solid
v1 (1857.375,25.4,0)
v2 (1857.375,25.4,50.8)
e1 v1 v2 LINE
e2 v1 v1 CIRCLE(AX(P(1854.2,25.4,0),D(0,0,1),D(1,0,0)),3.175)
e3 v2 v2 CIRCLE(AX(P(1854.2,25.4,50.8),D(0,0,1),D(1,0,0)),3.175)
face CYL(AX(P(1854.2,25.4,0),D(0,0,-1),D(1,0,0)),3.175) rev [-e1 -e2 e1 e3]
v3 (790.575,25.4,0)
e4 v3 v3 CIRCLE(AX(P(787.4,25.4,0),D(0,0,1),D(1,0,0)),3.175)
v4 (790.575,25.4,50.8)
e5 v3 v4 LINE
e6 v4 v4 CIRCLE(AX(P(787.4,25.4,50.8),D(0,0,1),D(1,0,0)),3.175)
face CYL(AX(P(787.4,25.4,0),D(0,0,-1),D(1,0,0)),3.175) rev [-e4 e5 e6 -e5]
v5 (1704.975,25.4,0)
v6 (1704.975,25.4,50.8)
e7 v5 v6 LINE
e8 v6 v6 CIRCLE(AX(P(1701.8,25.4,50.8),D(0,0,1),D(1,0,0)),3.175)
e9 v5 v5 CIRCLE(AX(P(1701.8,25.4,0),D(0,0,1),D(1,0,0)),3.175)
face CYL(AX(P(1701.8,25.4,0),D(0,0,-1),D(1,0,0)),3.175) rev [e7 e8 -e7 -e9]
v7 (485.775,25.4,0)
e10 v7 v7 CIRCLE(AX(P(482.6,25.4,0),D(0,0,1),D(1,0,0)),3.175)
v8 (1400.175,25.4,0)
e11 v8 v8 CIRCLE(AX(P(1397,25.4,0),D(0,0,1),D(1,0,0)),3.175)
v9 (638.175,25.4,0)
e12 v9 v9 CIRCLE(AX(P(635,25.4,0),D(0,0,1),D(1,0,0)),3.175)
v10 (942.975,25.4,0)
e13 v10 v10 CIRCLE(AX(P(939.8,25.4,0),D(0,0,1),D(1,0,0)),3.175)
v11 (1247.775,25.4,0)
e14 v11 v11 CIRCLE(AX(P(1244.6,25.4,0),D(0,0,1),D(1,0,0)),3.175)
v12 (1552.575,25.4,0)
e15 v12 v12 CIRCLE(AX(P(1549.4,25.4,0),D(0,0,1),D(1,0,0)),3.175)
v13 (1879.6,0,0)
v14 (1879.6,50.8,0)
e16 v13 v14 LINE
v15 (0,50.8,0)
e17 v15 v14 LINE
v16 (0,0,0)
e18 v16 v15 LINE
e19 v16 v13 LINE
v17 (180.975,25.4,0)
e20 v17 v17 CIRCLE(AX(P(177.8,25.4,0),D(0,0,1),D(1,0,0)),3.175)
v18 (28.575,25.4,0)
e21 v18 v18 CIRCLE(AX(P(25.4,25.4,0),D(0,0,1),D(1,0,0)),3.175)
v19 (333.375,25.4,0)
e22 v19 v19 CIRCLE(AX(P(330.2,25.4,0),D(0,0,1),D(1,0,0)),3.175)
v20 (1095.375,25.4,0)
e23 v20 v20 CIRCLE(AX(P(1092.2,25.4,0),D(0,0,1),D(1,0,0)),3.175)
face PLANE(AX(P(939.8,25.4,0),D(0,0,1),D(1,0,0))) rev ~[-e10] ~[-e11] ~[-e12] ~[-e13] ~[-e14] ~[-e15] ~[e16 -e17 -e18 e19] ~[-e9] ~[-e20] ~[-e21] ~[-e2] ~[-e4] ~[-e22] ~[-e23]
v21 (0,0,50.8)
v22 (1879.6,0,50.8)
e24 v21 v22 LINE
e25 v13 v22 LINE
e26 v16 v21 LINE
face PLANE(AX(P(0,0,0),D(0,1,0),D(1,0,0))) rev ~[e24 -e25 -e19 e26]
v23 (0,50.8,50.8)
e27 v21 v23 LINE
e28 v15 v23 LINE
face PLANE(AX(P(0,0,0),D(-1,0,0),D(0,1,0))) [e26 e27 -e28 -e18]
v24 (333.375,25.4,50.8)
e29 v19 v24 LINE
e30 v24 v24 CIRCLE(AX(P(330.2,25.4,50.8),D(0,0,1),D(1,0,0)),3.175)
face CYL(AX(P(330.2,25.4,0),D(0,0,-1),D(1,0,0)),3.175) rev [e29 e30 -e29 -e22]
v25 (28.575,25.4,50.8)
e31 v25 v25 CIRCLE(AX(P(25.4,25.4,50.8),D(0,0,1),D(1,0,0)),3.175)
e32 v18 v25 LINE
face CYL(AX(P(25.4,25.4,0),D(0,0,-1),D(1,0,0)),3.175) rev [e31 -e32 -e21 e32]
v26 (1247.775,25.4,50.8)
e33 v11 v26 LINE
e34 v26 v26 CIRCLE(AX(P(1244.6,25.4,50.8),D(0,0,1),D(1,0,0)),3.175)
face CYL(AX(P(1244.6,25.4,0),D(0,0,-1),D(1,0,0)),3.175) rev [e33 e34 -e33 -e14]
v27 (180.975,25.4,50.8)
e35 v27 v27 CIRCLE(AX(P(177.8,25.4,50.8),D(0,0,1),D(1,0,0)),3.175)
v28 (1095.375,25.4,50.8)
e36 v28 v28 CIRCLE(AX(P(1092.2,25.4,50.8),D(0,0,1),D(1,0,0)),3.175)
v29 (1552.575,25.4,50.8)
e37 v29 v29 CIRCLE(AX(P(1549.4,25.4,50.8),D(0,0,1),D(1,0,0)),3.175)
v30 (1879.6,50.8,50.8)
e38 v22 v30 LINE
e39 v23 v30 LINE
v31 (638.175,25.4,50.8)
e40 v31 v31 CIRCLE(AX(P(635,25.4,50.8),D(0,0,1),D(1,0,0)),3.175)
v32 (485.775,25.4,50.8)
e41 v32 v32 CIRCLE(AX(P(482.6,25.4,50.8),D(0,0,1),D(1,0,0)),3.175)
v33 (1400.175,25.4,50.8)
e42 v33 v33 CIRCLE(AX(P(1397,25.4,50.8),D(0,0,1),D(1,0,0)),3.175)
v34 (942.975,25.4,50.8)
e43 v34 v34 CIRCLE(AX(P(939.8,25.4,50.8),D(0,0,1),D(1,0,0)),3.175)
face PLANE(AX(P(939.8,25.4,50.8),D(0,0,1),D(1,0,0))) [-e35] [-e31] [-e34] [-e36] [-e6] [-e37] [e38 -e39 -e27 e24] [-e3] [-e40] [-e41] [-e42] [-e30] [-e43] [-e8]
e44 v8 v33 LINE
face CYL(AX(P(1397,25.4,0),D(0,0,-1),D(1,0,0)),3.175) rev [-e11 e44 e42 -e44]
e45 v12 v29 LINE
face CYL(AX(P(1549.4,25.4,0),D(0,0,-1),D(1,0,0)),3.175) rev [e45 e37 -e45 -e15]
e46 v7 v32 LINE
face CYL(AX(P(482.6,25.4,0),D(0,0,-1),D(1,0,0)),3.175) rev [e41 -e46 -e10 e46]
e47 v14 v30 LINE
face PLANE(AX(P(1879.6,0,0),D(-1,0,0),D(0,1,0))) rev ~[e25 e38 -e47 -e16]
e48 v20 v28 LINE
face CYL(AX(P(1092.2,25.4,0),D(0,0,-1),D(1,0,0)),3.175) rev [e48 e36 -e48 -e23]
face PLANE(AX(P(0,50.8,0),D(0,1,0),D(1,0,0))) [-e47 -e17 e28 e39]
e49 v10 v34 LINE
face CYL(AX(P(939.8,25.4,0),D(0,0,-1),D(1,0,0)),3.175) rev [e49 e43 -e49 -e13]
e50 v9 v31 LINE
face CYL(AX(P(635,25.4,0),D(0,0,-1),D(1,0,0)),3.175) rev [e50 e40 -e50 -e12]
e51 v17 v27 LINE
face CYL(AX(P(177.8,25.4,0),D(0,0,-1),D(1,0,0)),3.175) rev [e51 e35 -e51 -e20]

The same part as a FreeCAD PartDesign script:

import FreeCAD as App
import Part
import Sketcher

V = App.Vector
Q = App.Units.Quantity


def add_polygon(sketch, points):
    """Adds a closed chain of lines whose ends are joined by coincident constraints."""
    first, n = sketch.GeometryCount, len(points)
    for a, b in zip(points, points[1:] + points[:1]):
        sketch.addGeometry(Part.LineSegment(App.Vector(*a, 0), App.Vector(*b, 0)), False)
    for i in range(n):
        sketch.addConstraint(Sketcher.Constraint("Coincident", first + i, 2, first + (i + 1) % n, 1))

doc = App.newDocument("Part")
body = doc.addObject("PartDesign::Body", "Body")

# Sketch on XY plane
sketch1 = body.newObject("Sketcher::SketchObject", "Sketch")
sketch1.AttachmentSupport = (doc.getObject("XY_Plane"), [""])
sketch1.MapMode = "FlatFace"
add_polygon(sketch1, [(0, 50.8), (0, 0), (1879.6, 0), (1879.6, 50.8)])  # lines 0-3
sketch1.addGeometry(Part.Circle(V(25.4, 25.4, 0), V(0, 0, 1), 3.2), False)  # 4
sketch1.addGeometry(Part.Circle(V(177.8, 25.4, 0), V(0, 0, 1), 3.2), False)  # 5
sketch1.addGeometry(Part.Circle(V(330.2, 25.4, 0), V(0, 0, 1), 3.2), False)  # 6
sketch1.addGeometry(Part.Circle(V(482.6, 25.4, 0), V(0, 0, 1), 3.2), False)  # 7
sketch1.addGeometry(Part.Circle(V(635, 25.4, 0), V(0, 0, 1), 3.2), False)  # 8
sketch1.addGeometry(Part.Circle(V(787.4, 25.4, 0), V(0, 0, 1), 3.2), False)  # 9
sketch1.addGeometry(Part.Circle(V(939.8, 25.4, 0), V(0, 0, 1), 3.2), False)  # 10
sketch1.addGeometry(Part.Circle(V(1092.2, 25.4, 0), V(0, 0, 1), 3.2), False)  # 11
sketch1.addGeometry(Part.Circle(V(1244.6, 25.4, 0), V(0, 0, 1), 3.2), False)  # 12
sketch1.addGeometry(Part.Circle(V(1397, 25.4, 0), V(0, 0, 1), 3.2), False)  # 13
sketch1.addGeometry(Part.Circle(V(1549.4, 25.4, 0), V(0, 0, 1), 3.2), False)  # 14
sketch1.addGeometry(Part.Circle(V(1701.8, 25.4, 0), V(0, 0, 1), 3.2), False)  # 15
sketch1.addGeometry(Part.Circle(V(1854.2, 25.4, 0), V(0, 0, 1), 3.2), False)  # 16
sketch1.addConstraint(Sketcher.Constraint("Vertical", 0))
sketch1.addConstraint(Sketcher.Constraint("Horizontal", 1))
sketch1.addConstraint(Sketcher.Constraint("Vertical", 2))
sketch1.addConstraint(Sketcher.Constraint("Horizontal", 3))
sketch1.addConstraint(Sketcher.Constraint("Coincident", 0, 2, -1, 1))
sketch1.addConstraint(Sketcher.Constraint("Equal", 4, 5))
sketch1.addConstraint(Sketcher.Constraint("Equal", 5, 6))
sketch1.addConstraint(Sketcher.Constraint("Equal", 6, 7))
sketch1.addConstraint(Sketcher.Constraint("Equal", 7, 8))
sketch1.addConstraint(Sketcher.Constraint("Equal", 8, 9))
sketch1.addConstraint(Sketcher.Constraint("Equal", 9, 10))
sketch1.addConstraint(Sketcher.Constraint("Equal", 10, 11))
sketch1.addConstraint(Sketcher.Constraint("Equal", 11, 12))
sketch1.addConstraint(Sketcher.Constraint("Equal", 12, 13))
sketch1.addConstraint(Sketcher.Constraint("Equal", 13, 14))
sketch1.addConstraint(Sketcher.Constraint("Equal", 14, 15))
sketch1.addConstraint(Sketcher.Constraint("Equal", 15, 16))
sketch1.addConstraint(Sketcher.Constraint("Horizontal", 4, 3, 5, 3))
sketch1.addConstraint(Sketcher.Constraint("Horizontal", 5, 3, 6, 3))
sketch1.addConstraint(Sketcher.Constraint("Horizontal", 6, 3, 7, 3))
sketch1.addConstraint(Sketcher.Constraint("Horizontal", 7, 3, 8, 3))
sketch1.addConstraint(Sketcher.Constraint("Horizontal", 8, 3, 9, 3))
sketch1.addConstraint(Sketcher.Constraint("Horizontal", 9, 3, 10, 3))
sketch1.addConstraint(Sketcher.Constraint("Horizontal", 10, 3, 11, 3))
sketch1.addConstraint(Sketcher.Constraint("Horizontal", 11, 3, 12, 3))
sketch1.addConstraint(Sketcher.Constraint("Horizontal", 12, 3, 13, 3))
sketch1.addConstraint(Sketcher.Constraint("Horizontal", 13, 3, 14, 3))
sketch1.addConstraint(Sketcher.Constraint("Horizontal", 14, 3, 15, 3))
sketch1.addConstraint(Sketcher.Constraint("Horizontal", 15, 3, 16, 3))
sketch1.addConstraint(Sketcher.Constraint("Diameter", 4, Q("0.25 in")))
sketch1.addConstraint(Sketcher.Constraint("DistanceX", 1, 1, 1, 2, Q("74 in")))
sketch1.addConstraint(Sketcher.Constraint("DistanceY", 0, 2, 0, 1, Q("2 in")))
sketch1.addConstraint(Sketcher.Constraint("DistanceX", -1, 1, 4, 3, Q("1 in")))
sketch1.addConstraint(Sketcher.Constraint("DistanceY", -1, 1, 4, 3, Q("1 in")))
sketch1.addConstraint(Sketcher.Constraint("DistanceX", -1, 1, 5, 3, Q("7 in")))
sketch1.addConstraint(Sketcher.Constraint("DistanceX", -1, 1, 6, 3, Q("13 in")))
sketch1.addConstraint(Sketcher.Constraint("DistanceX", -1, 1, 7, 3, Q("19 in")))
sketch1.addConstraint(Sketcher.Constraint("DistanceX", -1, 1, 8, 3, Q("25 in")))
sketch1.addConstraint(Sketcher.Constraint("DistanceX", -1, 1, 9, 3, Q("31 in")))
sketch1.addConstraint(Sketcher.Constraint("DistanceX", -1, 1, 10, 3, Q("37 in")))
sketch1.addConstraint(Sketcher.Constraint("DistanceX", -1, 1, 11, 3, Q("43 in")))
sketch1.addConstraint(Sketcher.Constraint("DistanceX", -1, 1, 12, 3, Q("49 in")))
sketch1.addConstraint(Sketcher.Constraint("DistanceX", -1, 1, 13, 3, Q("55 in")))
sketch1.addConstraint(Sketcher.Constraint("DistanceX", -1, 1, 14, 3, Q("61 in")))
sketch1.addConstraint(Sketcher.Constraint("DistanceX", -1, 1, 15, 3, Q("67 in")))
sketch1.addConstraint(Sketcher.Constraint("DistanceX", -1, 1, 16, 3, Q("73 in")))
pad1 = body.newObject("PartDesign::Pad", "Pad")
pad1.Profile = sketch1
pad1.Length = Q("2 in")

doc.recompute()
